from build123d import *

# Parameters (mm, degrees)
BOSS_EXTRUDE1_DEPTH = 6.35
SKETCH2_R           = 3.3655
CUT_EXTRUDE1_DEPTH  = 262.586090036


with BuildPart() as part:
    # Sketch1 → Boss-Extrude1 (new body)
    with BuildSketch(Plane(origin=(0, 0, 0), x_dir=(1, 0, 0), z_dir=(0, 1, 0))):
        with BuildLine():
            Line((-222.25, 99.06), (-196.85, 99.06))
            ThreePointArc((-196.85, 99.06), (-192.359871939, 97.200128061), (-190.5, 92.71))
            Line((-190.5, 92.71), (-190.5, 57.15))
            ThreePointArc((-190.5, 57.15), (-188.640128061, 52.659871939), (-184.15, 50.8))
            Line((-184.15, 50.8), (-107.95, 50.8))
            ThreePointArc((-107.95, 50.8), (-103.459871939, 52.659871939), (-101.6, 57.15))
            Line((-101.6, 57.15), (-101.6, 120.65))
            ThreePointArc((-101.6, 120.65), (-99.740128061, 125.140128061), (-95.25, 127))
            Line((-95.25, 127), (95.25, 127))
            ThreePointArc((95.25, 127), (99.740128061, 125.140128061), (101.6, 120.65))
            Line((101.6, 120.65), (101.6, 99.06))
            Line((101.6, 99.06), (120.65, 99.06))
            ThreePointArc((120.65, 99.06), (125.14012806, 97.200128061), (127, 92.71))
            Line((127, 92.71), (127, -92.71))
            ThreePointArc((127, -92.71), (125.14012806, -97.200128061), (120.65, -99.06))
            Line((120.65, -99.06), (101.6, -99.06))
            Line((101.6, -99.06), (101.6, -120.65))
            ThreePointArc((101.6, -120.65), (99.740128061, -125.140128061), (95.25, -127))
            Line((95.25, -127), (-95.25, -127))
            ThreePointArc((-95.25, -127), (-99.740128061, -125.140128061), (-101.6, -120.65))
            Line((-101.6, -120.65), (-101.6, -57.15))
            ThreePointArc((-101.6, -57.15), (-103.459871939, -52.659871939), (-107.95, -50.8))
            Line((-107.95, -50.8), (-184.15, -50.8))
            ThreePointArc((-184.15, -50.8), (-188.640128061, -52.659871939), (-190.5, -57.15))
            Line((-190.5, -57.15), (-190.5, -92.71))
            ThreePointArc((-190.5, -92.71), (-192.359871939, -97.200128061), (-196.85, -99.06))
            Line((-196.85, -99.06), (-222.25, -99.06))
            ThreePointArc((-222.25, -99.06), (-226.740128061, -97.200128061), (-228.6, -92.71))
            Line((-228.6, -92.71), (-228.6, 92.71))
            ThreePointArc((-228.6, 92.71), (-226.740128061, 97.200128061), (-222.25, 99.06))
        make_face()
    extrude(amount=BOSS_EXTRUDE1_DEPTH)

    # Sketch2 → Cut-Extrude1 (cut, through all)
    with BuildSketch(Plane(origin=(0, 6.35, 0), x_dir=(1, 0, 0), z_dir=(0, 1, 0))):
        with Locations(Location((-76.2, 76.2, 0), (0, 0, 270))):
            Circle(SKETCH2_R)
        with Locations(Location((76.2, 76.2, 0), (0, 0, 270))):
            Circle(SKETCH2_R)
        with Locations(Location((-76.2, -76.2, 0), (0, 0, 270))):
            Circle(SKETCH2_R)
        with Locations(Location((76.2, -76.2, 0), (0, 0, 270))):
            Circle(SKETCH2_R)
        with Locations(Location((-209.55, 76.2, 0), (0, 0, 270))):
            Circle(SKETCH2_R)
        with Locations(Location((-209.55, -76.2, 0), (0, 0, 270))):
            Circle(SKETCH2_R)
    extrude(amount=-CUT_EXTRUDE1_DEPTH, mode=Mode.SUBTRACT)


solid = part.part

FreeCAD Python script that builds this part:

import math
import FreeCAD as App
import Part
import Sketcher
from FreeCAD import Vector
Q = App.Units.Quantity

doc = App.newDocument("Part")
body = doc.addObject("PartDesign::Body", "Body")

# Sketch on XZ plane
sketch1 = body.newObject("Sketcher::SketchObject", "Sketch")
sketch1.AttachmentSupport = (doc.getObject("XZ_Plane"), [""])
sketch1.MapMode = "FlatFace"
sketch1.addGeometry(Part.LineSegment(Vector(-197, -99, 0), Vector(-222, -99, 0)), False)
sketch1.addGeometry(Part.ArcOfCircle(Part.Circle(Vector(-222, -93, 0), Vector(0, 0, 1), 6), math.radians(180), math.radians(270)), False)
sketch1.addGeometry(Part.LineSegment(Vector(-229, -93, 0), Vector(-229, 93, 0)), False)
sketch1.addGeometry(Part.ArcOfCircle(Part.Circle(Vector(-222, 93, 0), Vector(0, 0, 1), 6), math.radians(90), math.radians(180)), False)
sketch1.addGeometry(Part.LineSegment(Vector(-222, 99, 0), Vector(-197, 99, 0)), False)
sketch1.addGeometry(Part.ArcOfCircle(Part.Circle(Vector(-197, 93, 0), Vector(0, 0, 1), 6), math.radians(0), math.radians(90)), False)
sketch1.addGeometry(Part.LineSegment(Vector(-190, 93, 0), Vector(-190, 57, 0)), False)
sketch1.addGeometry(Part.ArcOfCircle(Part.Circle(Vector(-184, 57, 0), Vector(0, 0, 1), 6), math.radians(180), math.radians(270)), False)
sketch1.addGeometry(Part.LineSegment(Vector(-184, 51, 0), Vector(-108, 51, 0)), False)
sketch1.addGeometry(Part.ArcOfCircle(Part.Circle(Vector(-108, 57, 0), Vector(0, 0, 1), 6), math.radians(-90), math.radians(0)), False)
sketch1.addGeometry(Part.LineSegment(Vector(-102, 57, 0), Vector(-102, 121, 0)), False)
sketch1.addGeometry(Part.ArcOfCircle(Part.Circle(Vector(-95, 121, 0), Vector(0, 0, 1), 6), math.radians(90), math.radians(180)), False)
sketch1.addGeometry(Part.LineSegment(Vector(-95, 127, 0), Vector(95, 127, 0)), False)
sketch1.addGeometry(Part.ArcOfCircle(Part.Circle(Vector(95, 121, 0), Vector(0, 0, 1), 6), math.radians(0), math.radians(90)), False)
sketch1.addGeometry(Part.LineSegment(Vector(102, 121, 0), Vector(102, 99, 0)), False)
sketch1.addGeometry(Part.LineSegment(Vector(102, 99, 0), Vector(121, 99, 0)), False)
sketch1.addGeometry(Part.ArcOfCircle(Part.Circle(Vector(121, 93, 0), Vector(0, 0, 1), 6), math.radians(0), math.radians(90)), False)
sketch1.addGeometry(Part.LineSegment(Vector(127, 93, 0), Vector(127, -93, 0)), False)
sketch1.addGeometry(Part.ArcOfCircle(Part.Circle(Vector(121, -93, 0), Vector(0, 0, 1), 6), math.radians(-90), math.radians(0)), False)
sketch1.addGeometry(Part.LineSegment(Vector(121, -99, 0), Vector(102, -99, 0)), False)
sketch1.addGeometry(Part.LineSegment(Vector(102, -99, 0), Vector(102, -121, 0)), False)
sketch1.addGeometry(Part.ArcOfCircle(Part.Circle(Vector(95, -121, 0), Vector(0, 0, 1), 6), math.radians(-90), math.radians(0)), False)
sketch1.addGeometry(Part.LineSegment(Vector(95, -127, 0), Vector(-95, -127, 0)), False)
sketch1.addGeometry(Part.ArcOfCircle(Part.Circle(Vector(-95, -121, 0), Vector(0, 0, 1), 6), math.radians(180), math.radians(270)), False)
sketch1.addGeometry(Part.LineSegment(Vector(-102, -121, 0), Vector(-102, -57, 0)), False)
sketch1.addGeometry(Part.ArcOfCircle(Part.Circle(Vector(-108, -57, 0), Vector(0, 0, 1), 6), math.radians(0), math.radians(90)), False)
sketch1.addGeometry(Part.LineSegment(Vector(-108, -51, 0), Vector(-184, -51, 0)), False)
sketch1.addGeometry(Part.ArcOfCircle(Part.Circle(Vector(-184, -57, 0), Vector(0, 0, 1), 6), math.radians(90), math.radians(180)), False)
sketch1.addGeometry(Part.LineSegment(Vector(-190, -57, 0), Vector(-190, -93, 0)), False)
sketch1.addGeometry(Part.ArcOfCircle(Part.Circle(Vector(-197, -93, 0), Vector(0, 0, 1), 6), math.radians(-90), math.radians(0)), False)
sketch1.addConstraint(Sketcher.Constraint("Tangent", 0, 2, 1, 2))
sketch1.addConstraint(Sketcher.Constraint("Tangent", 1, 1, 2, 1))
sketch1.addConstraint(Sketcher.Constraint("Tangent", 2, 2, 3, 2))
sketch1.addConstraint(Sketcher.Constraint("Tangent", 3, 1, 4, 1))
sketch1.addConstraint(Sketcher.Constraint("Tangent", 4, 2, 5, 2))
sketch1.addConstraint(Sketcher.Constraint("Tangent", 5, 1, 6, 1))
sketch1.addConstraint(Sketcher.Constraint("Tangent", 6, 2, 7, 1))
sketch1.addConstraint(Sketcher.Constraint("Tangent", 7, 2, 8, 1))
sketch1.addConstraint(Sketcher.Constraint("Tangent", 8, 2, 9, 1))
sketch1.addConstraint(Sketcher.Constraint("Tangent", 9, 2, 10, 1))
sketch1.addConstraint(Sketcher.Constraint("Tangent", 10, 2, 11, 2))
sketch1.addConstraint(Sketcher.Constraint("Tangent", 11, 1, 12, 1))
sketch1.addConstraint(Sketcher.Constraint("Tangent", 12, 2, 13, 2))
sketch1.addConstraint(Sketcher.Constraint("Tangent", 13, 1, 14, 1))
sketch1.addConstraint(Sketcher.Constraint("Coincident", 14, 2, 15, 1))
sketch1.addConstraint(Sketcher.Constraint("Tangent", 15, 2, 16, 2))
sketch1.addConstraint(Sketcher.Constraint("Tangent", 16, 1, 17, 1))
sketch1.addConstraint(Sketcher.Constraint("Tangent", 17, 2, 18, 2))
sketch1.addConstraint(Sketcher.Constraint("Tangent", 18, 1, 19, 1))
sketch1.addConstraint(Sketcher.Constraint("Coincident", 19, 2, 20, 1))
sketch1.addConstraint(Sketcher.Constraint("Tangent", 20, 2, 21, 2))
sketch1.addConstraint(Sketcher.Constraint("Tangent", 21, 1, 22, 1))
sketch1.addConstraint(Sketcher.Constraint("Tangent", 22, 2, 23, 2))
sketch1.addConstraint(Sketcher.Constraint("Tangent", 23, 1, 24, 1))
sketch1.addConstraint(Sketcher.Constraint("Tangent", 24, 2, 25, 1))
sketch1.addConstraint(Sketcher.Constraint("Tangent", 25, 2, 26, 1))
sketch1.addConstraint(Sketcher.Constraint("Tangent", 26, 2, 27, 1))
sketch1.addConstraint(Sketcher.Constraint("Tangent", 27, 2, 28, 1))
sketch1.addConstraint(Sketcher.Constraint("Tangent", 28, 2, 29, 2))
sketch1.addConstraint(Sketcher.Constraint("Tangent", 29, 1, 0, 1))
sketch1.addConstraint(Sketcher.Constraint("Horizontal", 0))
sketch1.addConstraint(Sketcher.Constraint("Vertical", 2))
sketch1.addConstraint(Sketcher.Constraint("Horizontal", 4))
sketch1.addConstraint(Sketcher.Constraint("Vertical", 6))
sketch1.addConstraint(Sketcher.Constraint("Horizontal", 8))
sketch1.addConstraint(Sketcher.Constraint("Vertical", 10))
sketch1.addConstraint(Sketcher.Constraint("Horizontal", 12))
sketch1.addConstraint(Sketcher.Constraint("Vertical", 14))
sketch1.addConstraint(Sketcher.Constraint("Horizontal", 15))
sketch1.addConstraint(Sketcher.Constraint("Vertical", 17))
sketch1.addConstraint(Sketcher.Constraint("Horizontal", 19))
sketch1.addConstraint(Sketcher.Constraint("Vertical", 20))
sketch1.addConstraint(Sketcher.Constraint("Horizontal", 22))
sketch1.addConstraint(Sketcher.Constraint("Vertical", 24))
sketch1.addConstraint(Sketcher.Constraint("Horizontal", 26))
sketch1.addConstraint(Sketcher.Constraint("Vertical", 28))
sketch1.addConstraint(Sketcher.Constraint("Equal", 1, 3))
sketch1.addConstraint(Sketcher.Constraint("Equal", 3, 5))
sketch1.addConstraint(Sketcher.Constraint("Equal", 5, 7))
sketch1.addConstraint(Sketcher.Constraint("Equal", 7, 9))
sketch1.addConstraint(Sketcher.Constraint("Equal", 9, 11))
sketch1.addConstraint(Sketcher.Constraint("Equal", 11, 13))
sketch1.addConstraint(Sketcher.Constraint("Equal", 13, 16))
sketch1.addConstraint(Sketcher.Constraint("Equal", 16, 18))
sketch1.addConstraint(Sketcher.Constraint("Equal", 18, 21))
sketch1.addConstraint(Sketcher.Constraint("Equal", 21, 23))
sketch1.addConstraint(Sketcher.Constraint("Equal", 23, 25))
sketch1.addConstraint(Sketcher.Constraint("Equal", 25, 27))
sketch1.addConstraint(Sketcher.Constraint("Equal", 27, 29))
sketch1.addConstraint(Sketcher.Constraint("Symmetric", 11, 3, 21, 3, -1, 1))
sketch1.addConstraint(Sketcher.Constraint("Symmetric", 9, 3, 25, 3, -1))
sketch1.addConstraint(Sketcher.Constraint("Symmetric", 5, 3, 29, 3, -1))
sketch1.addConstraint(Sketcher.Constraint("Symmetric", 14, 2, 19, 2, -1))
sketch1.addConstraint(Sketcher.Constraint("Horizontal", 5, 3, 16, 3))
sketch1.addConstraint(Sketcher.Constraint("DistanceX", 0, 2, 0, 1, Q("1 in")))
sketch1.addConstraint(Sketcher.Constraint("DistanceX", 8, 1, 8, 2, Q("3 in")))
sketch1.addConstraint(Sketcher.Constraint("Radius", 1, Q("0.25 in")))
sketch1.addConstraint(Sketcher.Constraint("DistanceX", 12, 1, 12, 2, Q("7.5 in")))
sketch1.addConstraint(Sketcher.Constraint("DistanceY", 2, 1, 2, 2, Q("7.3 in")))
sketch1.addConstraint(Sketcher.Constraint("DistanceY", 6, 2, 6, 1, Q("1.4 in")))
sketch1.addConstraint(Sketcher.Constraint("DistanceY", 10, 1, 10, 2, Q("2.5 in")))
sketch1.addConstraint(Sketcher.Constraint("DistanceX", -1, 1, 16, 1, Q("5 in")))
pad1 = body.newObject("PartDesign::Pad", "Pad")
pad1.Profile = sketch1
pad1.Length = Q("0.25 in")
pad1.Reversed = True

# Sketch on XZ plane
sketch2 = body.newObject("Sketcher::SketchObject", "Sketch001")
sketch2.AttachmentSupport = (doc.getObject("XZ_Plane"), [""])
sketch2.MapMode = "FlatFace"
sketch2.AttachmentOffset = App.Placement(Vector(0, 0, -0.25 * 25.4), App.Rotation())
sketch2.addGeometry(Part.Circle(Vector(-76.2, -76.2, 0), Vector(0, 0, 1), 3.4), False)
sketch2.addGeometry(Part.Circle(Vector(76.2, -76.2, 0), Vector(0, 0, 1), 3.4), False)
sketch2.addGeometry(Part.Circle(Vector(-76.2, 76.2, 0), Vector(0, 0, 1), 3.4), False)
sketch2.addGeometry(Part.Circle(Vector(76.2, 76.2, 0), Vector(0, 0, 1), 3.4), False)
sketch2.addGeometry(Part.Circle(Vector(-209.6, -76.2, 0), Vector(0, 0, 1), 3.4), False)
sketch2.addGeometry(Part.Circle(Vector(-209.6, 76.2, 0), Vector(0, 0, 1), 3.4), False)
sketch2.addConstraint(Sketcher.Constraint("Equal", 0, 1))
sketch2.addConstraint(Sketcher.Constraint("Equal", 1, 2))
sketch2.addConstraint(Sketcher.Constraint("Equal", 2, 3))
sketch2.addConstraint(Sketcher.Constraint("Equal", 3, 4))
sketch2.addConstraint(Sketcher.Constraint("Equal", 4, 5))
sketch2.addConstraint(Sketcher.Constraint("Symmetric", 1, 3, 2, 3, -1, 1))
sketch2.addConstraint(Sketcher.Constraint("Symmetric", 0, 3, 3, 3, -1, 1))
sketch2.addConstraint(Sketcher.Constraint("Symmetric", 0, 3, 1, 3, -2))
sketch2.addConstraint(Sketcher.Constraint("Symmetric", 4, 3, 5, 3, -1))
sketch2.addConstraint(Sketcher.Constraint("Horizontal", 1, 3, 4, 3))
sketch2.addConstraint(Sketcher.Constraint("Diameter", 0, Q("0.265 in")))
sketch2.addConstraint(Sketcher.Constraint("DistanceX", 0, 3, -1, 1, Q("3 in")))
sketch2.addConstraint(Sketcher.Constraint("DistanceY", 0, 3, -1, 1, Q("3 in")))
sketch2.addConstraint(Sketcher.Constraint("DistanceX", 4, 3, -1, 1, Q("8.25 in")))
pocket1 = body.newObject("PartDesign::Pocket", "Pocket")
pocket1.Profile = sketch2
pocket1.Type = "ThroughAll"
pocket1.Reversed = True

doc.recompute()
